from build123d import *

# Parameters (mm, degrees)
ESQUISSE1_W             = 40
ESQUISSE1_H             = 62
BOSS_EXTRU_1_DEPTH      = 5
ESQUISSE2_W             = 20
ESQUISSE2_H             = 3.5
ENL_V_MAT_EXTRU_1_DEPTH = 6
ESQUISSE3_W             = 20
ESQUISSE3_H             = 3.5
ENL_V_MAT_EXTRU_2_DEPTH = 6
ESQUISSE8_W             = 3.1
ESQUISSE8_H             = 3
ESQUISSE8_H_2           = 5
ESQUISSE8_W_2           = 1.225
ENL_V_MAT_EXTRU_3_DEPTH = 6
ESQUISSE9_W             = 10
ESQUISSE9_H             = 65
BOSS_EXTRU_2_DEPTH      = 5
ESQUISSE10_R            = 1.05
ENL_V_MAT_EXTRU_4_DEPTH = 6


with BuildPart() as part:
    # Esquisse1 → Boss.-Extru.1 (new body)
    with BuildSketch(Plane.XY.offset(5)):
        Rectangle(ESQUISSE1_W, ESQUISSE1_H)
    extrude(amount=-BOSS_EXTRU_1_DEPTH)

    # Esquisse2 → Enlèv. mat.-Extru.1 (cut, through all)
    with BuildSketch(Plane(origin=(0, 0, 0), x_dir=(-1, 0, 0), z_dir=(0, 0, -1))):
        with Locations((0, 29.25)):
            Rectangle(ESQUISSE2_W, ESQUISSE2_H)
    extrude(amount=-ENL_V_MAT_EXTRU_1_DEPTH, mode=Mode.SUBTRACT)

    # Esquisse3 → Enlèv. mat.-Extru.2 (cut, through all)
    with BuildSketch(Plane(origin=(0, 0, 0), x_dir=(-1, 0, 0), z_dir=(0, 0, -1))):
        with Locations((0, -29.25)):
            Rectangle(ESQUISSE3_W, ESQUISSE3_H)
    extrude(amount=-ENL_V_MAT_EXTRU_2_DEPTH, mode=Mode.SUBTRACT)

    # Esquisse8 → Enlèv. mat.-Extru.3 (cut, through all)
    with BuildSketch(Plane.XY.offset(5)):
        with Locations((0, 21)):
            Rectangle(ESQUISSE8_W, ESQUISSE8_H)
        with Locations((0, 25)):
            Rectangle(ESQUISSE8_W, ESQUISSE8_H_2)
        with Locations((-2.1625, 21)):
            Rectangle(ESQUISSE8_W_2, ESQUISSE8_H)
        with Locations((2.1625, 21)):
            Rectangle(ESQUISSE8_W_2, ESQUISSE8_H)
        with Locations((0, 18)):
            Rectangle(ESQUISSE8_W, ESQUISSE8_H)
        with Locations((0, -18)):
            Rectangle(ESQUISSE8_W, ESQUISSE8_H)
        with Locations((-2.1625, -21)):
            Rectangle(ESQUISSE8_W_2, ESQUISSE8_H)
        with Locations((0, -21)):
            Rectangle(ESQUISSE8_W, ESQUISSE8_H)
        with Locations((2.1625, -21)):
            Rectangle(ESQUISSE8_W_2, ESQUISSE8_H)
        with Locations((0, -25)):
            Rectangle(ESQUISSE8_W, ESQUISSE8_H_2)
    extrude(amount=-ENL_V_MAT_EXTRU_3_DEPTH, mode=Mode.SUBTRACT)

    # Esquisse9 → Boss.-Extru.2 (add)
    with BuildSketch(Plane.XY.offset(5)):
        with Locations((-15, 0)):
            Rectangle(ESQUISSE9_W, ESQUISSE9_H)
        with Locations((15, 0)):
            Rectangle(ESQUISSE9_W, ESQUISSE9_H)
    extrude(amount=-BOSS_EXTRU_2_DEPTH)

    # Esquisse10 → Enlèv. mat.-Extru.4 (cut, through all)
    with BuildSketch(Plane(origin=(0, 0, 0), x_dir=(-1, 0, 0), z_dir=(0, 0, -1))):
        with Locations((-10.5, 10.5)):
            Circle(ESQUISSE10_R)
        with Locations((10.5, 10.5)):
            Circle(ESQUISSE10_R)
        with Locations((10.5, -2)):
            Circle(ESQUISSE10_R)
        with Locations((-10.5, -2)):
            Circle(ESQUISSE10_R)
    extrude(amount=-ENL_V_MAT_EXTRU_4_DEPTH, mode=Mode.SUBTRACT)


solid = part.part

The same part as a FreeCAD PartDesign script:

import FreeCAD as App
import Part
import Sketcher
from FreeCAD import Vector
Q = App.Units.Quantity


def add_polygon(sketch, points):
    """Adds a closed chain of lines whose ends are joined by coincident constraints."""
    first, n = sketch.GeometryCount, len(points)
    for a, b in zip(points, points[1:] + points[:1]):
        sketch.addGeometry(Part.LineSegment(App.Vector(*a, 0), App.Vector(*b, 0)), False)
    for i in range(n):
        sketch.addConstraint(Sketcher.Constraint("Coincident", first + i, 2, first + (i + 1) % n, 1))

doc = App.newDocument("Part")
body = doc.addObject("PartDesign::Body", "Body")

sketch1 = body.newObject("Sketcher::SketchObject", "Sketch")
sketch1.AttachmentSupport = (doc.getObject("XY_Plane"), [""])
sketch1.MapMode = "FlatFace"
sketch1.AttachmentOffset = App.Placement(Vector(0, 0, 5), App.Rotation())
add_polygon(sketch1, [(-20, 31), (-20, -31), (20, -31), (20, 31)])
sketch1.addConstraint([
    Sketcher.Constraint("Vertical", 0),
    Sketcher.Constraint("Horizontal", 1),
    Sketcher.Constraint("Vertical", 2),
    Sketcher.Constraint("Horizontal", 3),
    Sketcher.Constraint("Symmetric", 0, 2, 2, 2, -1, 1),
    Sketcher.Constraint("DistanceX", 1, 1, 1, 2, Q("40 mm")),
    Sketcher.Constraint("DistanceY", 0, 2, 0, 1, Q("62 mm")),
])
pad1 = body.newObject("PartDesign::Pad", "Pad")
pad1.Profile = sketch1
pad1.Length = 5
pad1.Reversed = True

sketch2 = body.newObject("Sketcher::SketchObject", "Sketch001")
sketch2.AttachmentSupport = (doc.getObject("XY_Plane"), [""])
sketch2.MapMode = "FlatFace"
add_polygon(sketch2, [(10, 31), (10, 27.5), (-10, 27.5), (-10, 31)])
sketch2.addConstraint([
    Sketcher.Constraint("Vertical", 0),
    Sketcher.Constraint("Horizontal", 1),
    Sketcher.Constraint("Vertical", 2),
    Sketcher.Constraint("Horizontal", 3),
    Sketcher.Constraint("DistanceX", 1, 2, 1, 1, Q("20 mm")),
    Sketcher.Constraint("DistanceY", 0, 2, 0, 1, Q("3.5 mm")),
    Sketcher.Constraint("DistanceX", -1, 1, 0, 2, Q("10 mm")),
    Sketcher.Constraint("DistanceY", -1, 1, 2, 2, Q("31 mm")),
])
pocket1 = body.newObject("PartDesign::Pocket", "Pocket")
pocket1.Profile = sketch2
pocket1.Type = "ThroughAll"
pocket1.Reversed = True

sketch3 = body.newObject("Sketcher::SketchObject", "Sketch002")
sketch3.AttachmentSupport = (doc.getObject("XY_Plane"), [""])
sketch3.MapMode = "FlatFace"
add_polygon(sketch3, [(10, -27.5), (10, -31), (-10, -31), (-10, -27.5)])
sketch3.addConstraint([
    Sketcher.Constraint("Vertical", 0),
    Sketcher.Constraint("Horizontal", 1),
    Sketcher.Constraint("Vertical", 2),
    Sketcher.Constraint("Horizontal", 3),
    Sketcher.Constraint("DistanceX", 1, 2, 1, 1, Q("20 mm")),
    Sketcher.Constraint("DistanceY", 0, 2, 0, 1, Q("3.5 mm")),
    Sketcher.Constraint("DistanceX", -1, 1, 0, 2, Q("10 mm")),
    Sketcher.Constraint("DistanceY", 0, 2, -1, 1, Q("31 mm")),
])
pocket2 = body.newObject("PartDesign::Pocket", "Pocket001")
pocket2.Profile = sketch3
pocket2.Type = "ThroughAll"
pocket2.Reversed = True

sketch4 = body.newObject("Sketcher::SketchObject", "Sketch003")
sketch4.AttachmentSupport = (doc.getObject("XY_Plane"), [""])
sketch4.MapMode = "FlatFace"
sketch4.AttachmentOffset = App.Placement(Vector(0, 0, 5), App.Rotation())
add_polygon(sketch4, [(1.55, 22.5), (1.55, 27.5), (-1.55, 27.5), (-1.55, 22.5), (-2.775, 22.5), (-2.775, 19.5), (-1.55, 19.5), (-1.55, 16.5), (1.55, 16.5), (1.55, 19.5), (2.775, 19.5), (2.775, 22.5)])
add_polygon(sketch4, [(-1.55, -16.5), (-1.55, -19.5), (-2.775, -19.5), (-2.775, -22.5), (-1.55, -22.5), (-1.55, -27.5), (1.55, -27.5), (1.55, -22.5), (2.775, -22.5), (2.775, -19.5), (1.55, -19.5), (1.55, -16.5)])
sketch4.addConstraint([
    Sketcher.Constraint("Vertical", 0),
    Sketcher.Constraint("Horizontal", 1),
    Sketcher.Constraint("Vertical", 2),
    Sketcher.Constraint("Horizontal", 3),
    Sketcher.Constraint("Vertical", 4),
    Sketcher.Constraint("Horizontal", 5),
    Sketcher.Constraint("Vertical", 6),
    Sketcher.Constraint("Horizontal", 7),
    Sketcher.Constraint("Vertical", 8),
    Sketcher.Constraint("Horizontal", 9),
    Sketcher.Constraint("Vertical", 10),
    Sketcher.Constraint("Horizontal", 11),
    Sketcher.Constraint("Vertical", 12),
    Sketcher.Constraint("Horizontal", 13),
    Sketcher.Constraint("Vertical", 14),
    Sketcher.Constraint("Horizontal", 15),
    Sketcher.Constraint("Vertical", 16),
    Sketcher.Constraint("Horizontal", 17),
    Sketcher.Constraint("Vertical", 18),
    Sketcher.Constraint("Horizontal", 19),
    Sketcher.Constraint("Vertical", 20),
    Sketcher.Constraint("Horizontal", 21),
    Sketcher.Constraint("Vertical", 22),
    Sketcher.Constraint("Horizontal", 23),
    Sketcher.Constraint("Symmetric", 8, 2, 12, 2, -1, 1),
    Sketcher.Constraint("Symmetric", 10, 2, 14, 2, -1, 1),
    Sketcher.Constraint("Symmetric", 0, 2, 16, 2, -1, 1),
    Sketcher.Constraint("Symmetric", 2, 2, 18, 2, -1, 1),
    Sketcher.Constraint("Symmetric", 4, 2, 20, 2, -1, 1),
    Sketcher.Constraint("Symmetric", 6, 2, 22, 2, -1, 1),
    Sketcher.Constraint("Symmetric", 5, 2, 8, 2, -2),
    Sketcher.Constraint("Symmetric", 3, 2, 10, 2, -2),
    Sketcher.Constraint("Vertical", 2, 2, 5, 2),
    Sketcher.Constraint("Vertical", 0, 2, 7, 2),
    Sketcher.Constraint("Equal", 4, 6),
    Sketcher.Constraint("DistanceY", 0, 1, 0, 2, Q("5 mm")),
    Sketcher.Constraint("DistanceY", 4, 2, 4, 1, Q("3 mm")),
    Sketcher.Constraint("DistanceX", 1, 2, 1, 1, Q("3.1 mm")),
    Sketcher.Constraint("DistanceY", 12, 2, 6, 2, Q("36 mm")),
    Sketcher.Constraint("DistanceX", 3, 2, 3, 1, Q("1.225 mm")),
])
pocket3 = body.newObject("PartDesign::Pocket", "Pocket002")
pocket3.Profile = sketch4
pocket3.Type = "ThroughAll"

sketch5 = body.newObject("Sketcher::SketchObject", "Sketch004")
sketch5.AttachmentSupport = (doc.getObject("XY_Plane"), [""])
sketch5.MapMode = "FlatFace"
sketch5.AttachmentOffset = App.Placement(Vector(0, 0, 5), App.Rotation())
add_polygon(sketch5, [(-20, 32.5), (-20, -32.5), (-10, -32.5), (-10, 32.5)])
add_polygon(sketch5, [(10, 32.5), (10, -32.5), (20, -32.5), (20, 32.5)])
sketch5.addConstraint([
    Sketcher.Constraint("Vertical", 0),
    Sketcher.Constraint("Horizontal", 1),
    Sketcher.Constraint("Vertical", 2),
    Sketcher.Constraint("Horizontal", 3),
    Sketcher.Constraint("Vertical", 4),
    Sketcher.Constraint("Horizontal", 5),
    Sketcher.Constraint("Vertical", 6),
    Sketcher.Constraint("Horizontal", 7),
    Sketcher.Constraint("Symmetric", 2, 2, 4, 2, -1, 1),
    Sketcher.Constraint("Symmetric", 0, 2, 6, 2, -1, 1),
    Sketcher.Constraint("Horizontal", 1, 2, 4, 2),
    Sketcher.Constraint("DistanceX", 1, 1, 1, 2, Q("10 mm")),
    Sketcher.Constraint("DistanceY", 0, 2, 0, 1, Q("65 mm")),
    Sketcher.Constraint("DistanceX", 0, 2, -1, 1, Q("20 mm")),
])
pad2 = body.newObject("PartDesign::Pad", "Pad001")
pad2.Profile = sketch5
pad2.Length = 5
pad2.Reversed = True

sketch6 = body.newObject("Sketcher::SketchObject", "Sketch005")
sketch6.AttachmentSupport = (doc.getObject("XY_Plane"), [""])
sketch6.MapMode = "FlatFace"
sketch6.addGeometry([
    Part.Circle(Vector(10.5, 10.5, 0), Vector(0, 0, 1), 1.05),
    Part.Circle(Vector(-10.5, 10.5, 0), Vector(0, 0, 1), 1.05),
    Part.Circle(Vector(-10.5, -2, 0), Vector(0, 0, 1), 1.05),
    Part.Circle(Vector(10.5, -2, 0), Vector(0, 0, 1), 1.05),
], False)
sketch6.addConstraint([
    Sketcher.Constraint("Equal", 0, 1),
    Sketcher.Constraint("Equal", 1, 2),
    Sketcher.Constraint("Equal", 2, 3),
    Sketcher.Constraint("Symmetric", 0, 3, 1, 3, -2),
    Sketcher.Constraint("Symmetric", 2, 3, 3, 3, -2),
    Sketcher.Constraint("Vertical", 1, 3, 2, 3),
    Sketcher.Constraint("Diameter", 0, Q("2.1 mm")),
    Sketcher.Constraint("DistanceY", 2, 3, -1, 1, Q("2 mm")),
    Sketcher.Constraint("DistanceX", 1, 3, 0, 3, Q("21 mm")),
    Sketcher.Constraint("DistanceY", -1, 1, 0, 3, Q("10.5 mm")),
])
pocket4 = body.newObject("PartDesign::Pocket", "Pocket003")
pocket4.Profile = sketch6
pocket4.Type = "ThroughAll"
pocket4.Reversed = True

doc.recompute()
